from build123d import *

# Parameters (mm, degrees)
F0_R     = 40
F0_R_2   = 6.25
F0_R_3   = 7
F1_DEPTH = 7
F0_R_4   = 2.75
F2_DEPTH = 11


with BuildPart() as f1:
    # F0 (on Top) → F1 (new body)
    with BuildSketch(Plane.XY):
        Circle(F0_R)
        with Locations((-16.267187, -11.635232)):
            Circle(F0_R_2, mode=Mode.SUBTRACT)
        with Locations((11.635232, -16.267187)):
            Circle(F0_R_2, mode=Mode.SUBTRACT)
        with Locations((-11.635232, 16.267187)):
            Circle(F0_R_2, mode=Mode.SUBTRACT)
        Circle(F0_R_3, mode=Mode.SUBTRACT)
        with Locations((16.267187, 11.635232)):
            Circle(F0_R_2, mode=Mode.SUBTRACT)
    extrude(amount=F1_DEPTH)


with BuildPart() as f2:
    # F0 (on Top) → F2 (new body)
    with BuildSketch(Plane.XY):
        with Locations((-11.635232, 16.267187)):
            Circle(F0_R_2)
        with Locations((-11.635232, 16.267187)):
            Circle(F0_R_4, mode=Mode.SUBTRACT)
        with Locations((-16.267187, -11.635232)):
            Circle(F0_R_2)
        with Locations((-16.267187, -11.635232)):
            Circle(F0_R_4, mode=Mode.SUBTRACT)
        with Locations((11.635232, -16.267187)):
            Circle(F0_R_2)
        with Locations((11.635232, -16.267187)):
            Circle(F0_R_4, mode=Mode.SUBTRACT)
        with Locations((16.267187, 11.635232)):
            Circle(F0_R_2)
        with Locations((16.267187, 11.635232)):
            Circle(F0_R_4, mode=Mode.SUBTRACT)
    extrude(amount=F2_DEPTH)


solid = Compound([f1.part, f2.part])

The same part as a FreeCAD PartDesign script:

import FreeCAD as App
import Part
import Sketcher
Q = App.Units.Quantity

doc = App.newDocument("Part")
body = doc.addObject("PartDesign::Body", "Body")

sketch1 = body.newObject("Sketcher::SketchObject", "Sketch")
sketch1.AttachmentSupport = (doc.getObject("XY_Plane"), [""])
sketch1.MapMode = "FlatFace"
sketch1.addGeometry([
    Part.Circle(App.Vector(0, 0, 0), App.Vector(0, 0, 1), 40),
    Part.Circle(App.Vector(-16, -12, 0), App.Vector(0, 0, 1), 6),
    Part.Circle(App.Vector(12, -16, 0), App.Vector(0, 0, 1), 6),
    Part.Circle(App.Vector(-12, 16, 0), App.Vector(0, 0, 1), 6),
    Part.Circle(App.Vector(0, 0, 0), App.Vector(0, 0, 1), 7),
    Part.Circle(App.Vector(16, 12, 0), App.Vector(0, 0, 1), 6),
], False)
sketch1.addConstraint([
    Sketcher.Constraint("Coincident", 0, 3, -1, 1),
    Sketcher.Constraint("Coincident", 4, 3, -1, 1),
    Sketcher.Constraint("Equal", 1, 2),
    Sketcher.Constraint("Equal", 2, 3),
    Sketcher.Constraint("Equal", 3, 5),
    Sketcher.Constraint("Symmetric", 2, 3, 3, 3, -1, 1),
    Sketcher.Constraint("Symmetric", 1, 3, 5, 3, -1, 1),
    Sketcher.Constraint("Diameter", 0, Q("80 mm")),
    Sketcher.Constraint("Diameter", 4, Q("14 mm")),
    Sketcher.Constraint("Diameter", 1, Q("12.5 mm")),
    Sketcher.Constraint("DistanceX", 1, 3, 2, 3, Q("27.902419 mm")),
    Sketcher.Constraint("DistanceY", 1, 3, 3, 3, Q("27.902419 mm")),
    Sketcher.Constraint("DistanceX", 1, 3, -1, 1, Q("16.267187 mm")),
    Sketcher.Constraint("DistanceY", 1, 3, -1, 1, Q("11.635232 mm")),
])
pad1 = body.newObject("PartDesign::Pad", "Pad")
pad1.Profile = sketch1
pad1.Length = 7
body2 = doc.addObject("PartDesign::Body", "Body001")
body2.AllowCompound = True

sketch2 = body2.newObject("Sketcher::SketchObject", "Sketch001")
sketch2.AttachmentSupport = (doc.getObject("XY_Plane001"), [""])
sketch2.MapMode = "FlatFace"
sketch2.addGeometry([
    Part.Circle(App.Vector(-11.6, 16.3, 0), App.Vector(0, 0, 1), 6.2),
    Part.Circle(App.Vector(-11.6, 16.3, 0), App.Vector(0, 0, 1), 2.8),
    Part.Circle(App.Vector(-16.3, -11.6, 0), App.Vector(0, 0, 1), 6.2),
    Part.Circle(App.Vector(-16.3, -11.6, 0), App.Vector(0, 0, 1), 2.8),
    Part.Circle(App.Vector(11.6, -16.3, 0), App.Vector(0, 0, 1), 6.2),
    Part.Circle(App.Vector(11.6, -16.3, 0), App.Vector(0, 0, 1), 2.8),
    Part.Circle(App.Vector(16.3, 11.6, 0), App.Vector(0, 0, 1), 6.2),
    Part.Circle(App.Vector(16.3, 11.6, 0), App.Vector(0, 0, 1), 2.8),
], False)
sketch2.addConstraint([
    Sketcher.Constraint("Coincident", 1, 3, 0, 3),
    Sketcher.Constraint("Coincident", 3, 3, 2, 3),
    Sketcher.Constraint("Coincident", 5, 3, 4, 3),
    Sketcher.Constraint("Coincident", 7, 3, 6, 3),
    Sketcher.Constraint("Equal", 0, 2),
    Sketcher.Constraint("Equal", 1, 3),
    Sketcher.Constraint("Equal", 2, 4),
    Sketcher.Constraint("Equal", 3, 5),
    Sketcher.Constraint("Equal", 4, 6),
    Sketcher.Constraint("Equal", 5, 7),
    Sketcher.Constraint("Symmetric", 0, 3, 4, 3, -1, 1),
    Sketcher.Constraint("Symmetric", 2, 3, 6, 3, -1, 1),
    Sketcher.Constraint("Diameter", 0, Q("12.5 mm")),
    Sketcher.Constraint("Diameter", 1, Q("5.5 mm")),
    Sketcher.Constraint("DistanceY", 2, 3, 0, 3, Q("27.902419 mm")),
    Sketcher.Constraint("DistanceX", 2, 3, 4, 3, Q("27.902419 mm")),
    Sketcher.Constraint("DistanceX", 0, 3, -1, 1, Q("11.635232 mm")),
    Sketcher.Constraint("DistanceY", -1, 1, 0, 3, Q("16.267187 mm")),
])
pad2 = body2.newObject("PartDesign::Pad", "Pad001")
pad2.Profile = sketch2
pad2.Length = 11

doc.recompute()
